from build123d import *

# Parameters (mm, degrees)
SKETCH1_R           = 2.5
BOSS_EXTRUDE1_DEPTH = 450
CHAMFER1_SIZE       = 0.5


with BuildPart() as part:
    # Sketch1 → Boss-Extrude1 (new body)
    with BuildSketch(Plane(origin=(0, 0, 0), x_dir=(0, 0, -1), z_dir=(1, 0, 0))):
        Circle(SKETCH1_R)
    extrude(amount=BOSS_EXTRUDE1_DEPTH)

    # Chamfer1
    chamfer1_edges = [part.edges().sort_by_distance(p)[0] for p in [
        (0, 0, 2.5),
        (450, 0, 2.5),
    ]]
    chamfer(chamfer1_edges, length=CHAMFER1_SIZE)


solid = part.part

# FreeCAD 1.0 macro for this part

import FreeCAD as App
import Part
import Sketcher
from FreeCAD import Vector


def edges_at(feature, points):
    """Names of the edges that pass closest to the given points."""
    edges = feature.Shape.Edges
    near = lambda p: min(range(len(edges)), key=lambda i: edges[i].distToShape(Part.Vertex(*p))[0])
    return sorted({f"Edge{near(p) + 1}" for p in points})

doc = App.newDocument("Part")
body = doc.addObject("PartDesign::Body", "Body")

# Sketch on YZ plane
sketch1 = body.newObject("Sketcher::SketchObject", "Sketch")
sketch1.AttachmentSupport = (doc.getObject("YZ_Plane"), [""])
sketch1.MapMode = "FlatFace"
sketch1.addGeometry(Part.Circle(Vector(0, 0, 0), Vector(0, 0, 1), 2.5), False)
sketch1.addConstraint([
    Sketcher.Constraint("Coincident", 0, 3, -1, 1),
    Sketcher.Constraint("Diameter", 0, 5.0),
])
pad1 = body.newObject("PartDesign::Pad", "Pad")
pad1.Profile = sketch1
pad1.Length = 450
doc.recompute()

chamfer = body.newObject("PartDesign::Chamfer", "Chamfer")
chamfer.Base = (pad1, edges_at(pad1, [(0, 0, 2.5), (450, 0, 2.5)]))
chamfer.Size = 0.5

doc.recompute()
